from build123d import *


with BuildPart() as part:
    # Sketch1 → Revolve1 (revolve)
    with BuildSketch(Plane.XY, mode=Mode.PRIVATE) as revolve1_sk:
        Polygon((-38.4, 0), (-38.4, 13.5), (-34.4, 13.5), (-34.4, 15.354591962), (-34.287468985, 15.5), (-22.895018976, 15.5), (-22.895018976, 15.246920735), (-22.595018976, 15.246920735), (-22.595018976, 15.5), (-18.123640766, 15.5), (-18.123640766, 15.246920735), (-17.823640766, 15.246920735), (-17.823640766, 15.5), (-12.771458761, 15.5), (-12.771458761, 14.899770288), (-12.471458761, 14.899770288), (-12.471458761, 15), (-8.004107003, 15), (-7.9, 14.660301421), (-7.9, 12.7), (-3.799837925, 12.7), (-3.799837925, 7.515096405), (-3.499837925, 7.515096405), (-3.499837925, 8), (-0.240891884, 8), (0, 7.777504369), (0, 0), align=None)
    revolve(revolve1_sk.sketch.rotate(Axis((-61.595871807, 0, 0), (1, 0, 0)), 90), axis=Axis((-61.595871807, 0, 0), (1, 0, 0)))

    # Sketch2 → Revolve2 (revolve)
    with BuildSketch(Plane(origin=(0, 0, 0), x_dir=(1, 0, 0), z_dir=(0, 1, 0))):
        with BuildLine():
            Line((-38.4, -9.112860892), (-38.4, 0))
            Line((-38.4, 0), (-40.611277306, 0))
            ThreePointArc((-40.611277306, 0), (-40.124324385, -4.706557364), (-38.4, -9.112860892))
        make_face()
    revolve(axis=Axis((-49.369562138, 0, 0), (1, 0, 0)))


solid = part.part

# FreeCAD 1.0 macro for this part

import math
import FreeCAD as App
import Part
import Sketcher

V = App.Vector
Q = App.Units.Quantity


def add_polygon(sketch, points):
    """Adds a closed chain of lines whose ends are joined by coincident constraints."""
    first, n = sketch.GeometryCount, len(points)
    for a, b in zip(points, points[1:] + points[:1]):
        sketch.addGeometry(Part.LineSegment(App.Vector(*a, 0), App.Vector(*b, 0)), False)
    for i in range(n):
        sketch.addConstraint(Sketcher.Constraint("Coincident", first + i, 2, first + (i + 1) % n, 1))

doc = App.newDocument("Part")
body = doc.addObject("PartDesign::Body", "Body")

# Sketch on XY plane
sketch1 = doc.addObject("Sketcher::SketchObject", "Sketch")
body.addObject(sketch1)
sketch1.AttachmentSupport = (doc.XY_Plane, [""])
sketch1.MapMode = "FlatFace"
add_polygon(sketch1, [(-38.4, 13.5), (-38.4, 0), (0, 0), (0, 7.78), (-0.24, 8), (-3.5, 8), (-3.5, 7.52), (-3.8, 7.52), (-3.8, 12.7), (-7.9, 12.7), (-7.9, 14.66), (-8, 15), (-12.47, 15), (-12.47, 14.9), (-12.77, 14.9), (-12.77, 15.5), (-17.82, 15.5), (-17.82, 15.25), (-18.12, 15.25), (-18.12, 15.5), (-22.6, 15.5), (-22.6, 15.25), (-22.9, 15.25), (-22.9, 15.5), (-34.29, 15.5), (-34.4, 15.35), (-34.4, 13.5)])  # lines 0-26
sketch1.addConstraint([
    Sketcher.Constraint("Vertical", 0),
    Sketcher.Constraint("Horizontal", 1),
    Sketcher.Constraint("Vertical", 2),
    Sketcher.Constraint("Horizontal", 4),
    Sketcher.Constraint("Vertical", 5),
    Sketcher.Constraint("Horizontal", 6),
    Sketcher.Constraint("Vertical", 7),
    Sketcher.Constraint("Horizontal", 8),
    Sketcher.Constraint("Vertical", 9),
    Sketcher.Constraint("Horizontal", 11),
    Sketcher.Constraint("Vertical", 12),
    Sketcher.Constraint("Horizontal", 13),
    Sketcher.Constraint("Vertical", 14),
    Sketcher.Constraint("Horizontal", 15),
    Sketcher.Constraint("Vertical", 16),
    Sketcher.Constraint("Horizontal", 17),
    Sketcher.Constraint("Vertical", 18),
    Sketcher.Constraint("Horizontal", 19),
    Sketcher.Constraint("Vertical", 20),
    Sketcher.Constraint("Horizontal", 21),
    Sketcher.Constraint("Vertical", 22),
    Sketcher.Constraint("Horizontal", 23),
    Sketcher.Constraint("Vertical", 25),
    Sketcher.Constraint("Horizontal", 26),
    Sketcher.Constraint("Coincident", 1, 2, -1, 1),
    Sketcher.Constraint("Horizontal", 15, 2, 18, 2),
    Sketcher.Constraint("Horizontal", 17, 2, 20, 2),
    Sketcher.Constraint("Horizontal", 19, 2, 22, 2),
    Sketcher.Constraint("Equal", 6, 13),
    Sketcher.Constraint("Equal", 13, 17),
    Sketcher.Constraint("Equal", 17, 21),
    Sketcher.Constraint("DistanceX", 26, 2, 26, 1, Q("4 mm")),
    Sketcher.Constraint("DistanceX", 1, 1, 1, 2, Q("38.4 mm")),
    Sketcher.Constraint("DistanceX", 6, 2, 6, 1, Q("0.3 mm")),
    Sketcher.Constraint("DistanceY", 0, 2, 0, 1, Q("13.5 mm")),
    Sketcher.Constraint("DistanceY", -1, 1, 3, 2, Q("8 mm")),
    Sketcher.Constraint("DistanceY", -1, 1, 10, 2, Q("15 mm")),
    Sketcher.Constraint("DistanceY", 25, 2, 23, 2, Q("2 mm")),
    Sketcher.Constraint("DistanceY", -1, 1, 7, 2, Q("12.7 mm")),
    Sketcher.Constraint("DistanceX", 8, 2, -1, 1, Q("7.9 mm")),
    Sketcher.Constraint("DistanceY", 9, 1, 9, 2, Q("1.960301 mm")),
    Sketcher.Constraint("DistanceX", 11, 2, 11, 1, Q("4.467352 mm")),
    Sketcher.Constraint("DistanceX", 19, 2, 19, 1, Q("4.471378 mm")),
    Sketcher.Constraint("DistanceX", 23, 2, 23, 1, Q("11.39245 mm")),
    Sketcher.Constraint("DistanceY", 12, 2, 12, 1, Q("0.10023 mm")),
    Sketcher.Constraint("DistanceY", 16, 2, 16, 1, Q("0.253079 mm")),
    Sketcher.Constraint("DistanceY", 25, 2, 25, 1, Q("1.854592 mm")),
    Sketcher.Constraint("DistanceX", 4, 2, 4, 1, Q("3.258946 mm")),
    Sketcher.Constraint("DistanceX", 8, 2, 8, 1, Q("4.100162 mm")),
    Sketcher.Constraint("DistanceX", 15, 2, 15, 1, Q("5.052182 mm")),
    Sketcher.Constraint("DistanceY", 2, 1, 2, 2, Q("7.777504 mm")),
    Sketcher.Constraint("DistanceY", 5, 2, 5, 1, Q("0.484904 mm")),
    Sketcher.Constraint("DistanceX", 11, 2, -1, 1, Q("12.471459 mm")),
])
revolution = doc.addObject("PartDesign::Revolution", "Revolution")
body.addObject(revolution)
revolution.Profile = sketch1
revolution.ReferenceAxis = (sketch1, ["H_Axis"])
revolution.Angle = 360

# Sketch on XZ plane
sketch2 = doc.addObject("Sketcher::SketchObject", "Sketch001")
body.addObject(sketch2)
sketch2.AttachmentSupport = (doc.XZ_Plane, [""])
sketch2.MapMode = "FlatFace"
sketch2.addGeometry([
    Part.LineSegment(V(-38.4, 9.1, 0), V(-38.4, 0, 0)),
    Part.LineSegment(V(-38.4, 0, 0), V(-40.6, 0, 0)),
    Part.ArcOfCircle(Part.Circle(V(-23, 0.6, 0), V(0, 0, 1), 17.6), math.radians(151), math.radians(182)),
], False)
sketch2.addConstraint([
    Sketcher.Constraint("Coincident", 0, 2, 1, 1),
    Sketcher.Constraint("Coincident", 1, 2, 2, 2),
    Sketcher.Constraint("Coincident", 2, 1, 0, 1),
    Sketcher.Constraint("Vertical", 0),
    Sketcher.Constraint("Horizontal", 1),
    Sketcher.Constraint("PointOnObject", 0, 2, -1),
    Sketcher.Constraint("DistanceX", 0, 2, -1, 1, Q("38.4 mm")),
    Sketcher.Constraint("Radius", 2, Q("17.583576 mm")),
    Sketcher.Constraint("DistanceY", 0, 2, 0, 1, Q("9.112861 mm")),
    Sketcher.Constraint("DistanceX", 1, 2, 1, 1, Q("2.211277 mm")),
])
revolution2 = doc.addObject("PartDesign::Revolution", "Revolution001")
body.addObject(revolution2)
revolution2.Profile = sketch2
revolution2.ReferenceAxis = (sketch2, ["H_Axis"])
revolution2.Angle = 360

doc.recompute()
